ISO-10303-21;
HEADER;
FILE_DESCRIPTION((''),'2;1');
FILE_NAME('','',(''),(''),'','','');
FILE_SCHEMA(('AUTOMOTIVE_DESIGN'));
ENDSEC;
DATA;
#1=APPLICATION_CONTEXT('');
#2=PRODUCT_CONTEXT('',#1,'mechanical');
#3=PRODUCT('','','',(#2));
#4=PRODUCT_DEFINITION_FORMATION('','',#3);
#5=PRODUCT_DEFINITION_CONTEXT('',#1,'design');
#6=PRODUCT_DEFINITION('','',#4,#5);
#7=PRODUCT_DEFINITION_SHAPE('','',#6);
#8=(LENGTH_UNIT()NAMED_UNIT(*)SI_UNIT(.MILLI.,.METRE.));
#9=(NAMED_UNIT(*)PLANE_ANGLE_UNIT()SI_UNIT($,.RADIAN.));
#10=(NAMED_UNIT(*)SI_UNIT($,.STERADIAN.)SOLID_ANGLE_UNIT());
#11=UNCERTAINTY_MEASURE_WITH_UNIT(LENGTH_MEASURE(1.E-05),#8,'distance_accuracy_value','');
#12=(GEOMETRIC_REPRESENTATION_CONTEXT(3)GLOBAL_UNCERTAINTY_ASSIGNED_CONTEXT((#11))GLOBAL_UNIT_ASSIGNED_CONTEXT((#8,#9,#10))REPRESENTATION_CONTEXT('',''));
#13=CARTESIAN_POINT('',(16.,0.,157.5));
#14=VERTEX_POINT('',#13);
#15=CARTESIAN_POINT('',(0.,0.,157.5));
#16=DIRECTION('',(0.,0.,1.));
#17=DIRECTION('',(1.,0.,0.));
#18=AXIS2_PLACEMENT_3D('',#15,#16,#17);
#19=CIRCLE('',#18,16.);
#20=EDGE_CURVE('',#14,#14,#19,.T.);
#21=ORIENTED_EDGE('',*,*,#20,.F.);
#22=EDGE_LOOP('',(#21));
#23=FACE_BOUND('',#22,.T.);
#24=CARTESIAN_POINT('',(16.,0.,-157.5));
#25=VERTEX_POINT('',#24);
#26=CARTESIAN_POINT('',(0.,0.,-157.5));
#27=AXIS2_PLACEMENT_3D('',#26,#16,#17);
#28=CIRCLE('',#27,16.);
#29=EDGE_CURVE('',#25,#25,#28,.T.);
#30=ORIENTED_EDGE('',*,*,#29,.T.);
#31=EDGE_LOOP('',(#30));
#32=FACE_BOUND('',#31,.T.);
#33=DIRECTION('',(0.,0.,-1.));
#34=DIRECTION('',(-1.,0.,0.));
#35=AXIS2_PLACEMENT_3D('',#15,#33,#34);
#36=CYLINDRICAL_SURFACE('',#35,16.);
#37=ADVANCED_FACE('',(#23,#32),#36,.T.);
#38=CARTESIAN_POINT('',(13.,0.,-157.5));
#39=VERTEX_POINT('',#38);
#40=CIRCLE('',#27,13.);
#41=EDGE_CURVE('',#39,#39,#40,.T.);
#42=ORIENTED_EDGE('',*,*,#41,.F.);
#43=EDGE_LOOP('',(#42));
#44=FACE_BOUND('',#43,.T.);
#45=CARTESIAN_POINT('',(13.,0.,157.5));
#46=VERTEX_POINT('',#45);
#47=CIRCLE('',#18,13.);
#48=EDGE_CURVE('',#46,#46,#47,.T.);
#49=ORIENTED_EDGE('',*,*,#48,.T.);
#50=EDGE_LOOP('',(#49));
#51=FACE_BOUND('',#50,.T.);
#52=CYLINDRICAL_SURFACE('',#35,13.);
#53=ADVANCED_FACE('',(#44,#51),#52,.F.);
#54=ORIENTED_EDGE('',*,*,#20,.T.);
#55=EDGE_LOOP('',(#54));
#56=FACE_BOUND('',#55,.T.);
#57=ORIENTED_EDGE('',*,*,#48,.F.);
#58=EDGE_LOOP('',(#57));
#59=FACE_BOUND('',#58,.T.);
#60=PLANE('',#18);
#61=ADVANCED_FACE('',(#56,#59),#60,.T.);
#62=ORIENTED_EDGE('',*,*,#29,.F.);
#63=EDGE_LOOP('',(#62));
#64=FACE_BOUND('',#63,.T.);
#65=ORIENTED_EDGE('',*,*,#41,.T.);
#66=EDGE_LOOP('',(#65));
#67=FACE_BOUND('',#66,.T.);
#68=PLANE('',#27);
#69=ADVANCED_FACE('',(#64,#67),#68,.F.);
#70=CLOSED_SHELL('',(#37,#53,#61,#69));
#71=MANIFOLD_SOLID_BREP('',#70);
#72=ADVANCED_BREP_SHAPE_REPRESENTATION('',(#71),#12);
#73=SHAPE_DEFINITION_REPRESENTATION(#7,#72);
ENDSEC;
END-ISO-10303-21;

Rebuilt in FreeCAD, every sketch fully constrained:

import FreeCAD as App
import Part
import Sketcher

V = App.Vector
Q = App.Units.Quantity


def faces_at(feature, points):
    """Names of the faces that lie closest to the given points."""
    faces = feature.Shape.Faces
    near = lambda p: min(range(len(faces)), key=lambda i: faces[i].distToShape(Part.Vertex(*p))[0])
    return sorted({f"Face{near(p) + 1}" for p in points})

doc = App.newDocument("Part")
body = doc.addObject("PartDesign::Body", "Body")

sketch1 = body.newObject("Sketcher::SketchObject", "Sketch")
sketch1.AttachmentSupport = (doc.getObject("XY_Plane"), [""])
sketch1.MapMode = "FlatFace"
sketch1.addGeometry(Part.Circle(V(0, 0, 0), V(0, 0, 1), 16), False)
sketch1.addConstraint([
    Sketcher.Constraint("Coincident", 0, 3, -1, 1),
    Sketcher.Constraint("Diameter", 0, Q("32 mm")),
])
pad1 = body.newObject("PartDesign::Pad", "Pad")
pad1.Profile = sketch1
pad1.Length = 315
pad1.Midplane = True
doc.recompute()

thickness = body.newObject("PartDesign::Thickness", "Thickness")
thickness.Base = (pad1, faces_at(pad1, [(0, 0, 157.5), (0, 0, -157.5)]))
thickness.Value = 3
thickness.Reversed = True
thickness.Join = "Intersection"

doc.recompute()
